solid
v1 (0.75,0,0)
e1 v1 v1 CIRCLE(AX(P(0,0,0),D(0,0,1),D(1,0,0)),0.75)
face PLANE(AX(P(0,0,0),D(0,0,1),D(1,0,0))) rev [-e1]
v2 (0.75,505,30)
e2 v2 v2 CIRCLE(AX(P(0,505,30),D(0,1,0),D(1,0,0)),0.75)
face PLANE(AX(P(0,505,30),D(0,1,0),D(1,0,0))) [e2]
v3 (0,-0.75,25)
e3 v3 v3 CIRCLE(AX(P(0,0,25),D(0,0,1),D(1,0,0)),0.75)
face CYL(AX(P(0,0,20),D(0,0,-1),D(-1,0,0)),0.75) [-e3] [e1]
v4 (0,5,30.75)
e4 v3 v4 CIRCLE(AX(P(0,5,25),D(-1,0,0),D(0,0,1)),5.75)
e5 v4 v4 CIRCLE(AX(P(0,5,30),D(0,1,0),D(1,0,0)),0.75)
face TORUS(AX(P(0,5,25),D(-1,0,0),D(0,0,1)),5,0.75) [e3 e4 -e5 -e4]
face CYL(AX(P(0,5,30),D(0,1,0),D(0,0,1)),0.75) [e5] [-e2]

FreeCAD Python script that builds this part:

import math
import FreeCAD as App
import Part
import Sketcher
from FreeCAD import Vector
Q = App.Units.Quantity

doc = App.newDocument("Part")
body = doc.addObject("PartDesign::Body", "Body")

sketch1 = body.newObject("Sketcher::SketchObject", "Sketch")
sketch1.AttachmentSupport = (doc.getObject("XY_Plane"), [""])
sketch1.MapMode = "FlatFace"
sketch1.addGeometry(Part.Circle(Vector(0, 0, 0), Vector(0, 0, 1), 0.8), False)
sketch1.addConstraint([
    Sketcher.Constraint("Coincident", 0, 3, -1, 1),
    Sketcher.Constraint("Diameter", 0, Q("1.5 mm")),
])
pad1 = body.newObject("PartDesign::Pad", "Pad")
pad1.Profile = sketch1
pad1.Length = 20

sketch2 = body.newObject("Sketcher::SketchObject", "Sketch001")
sketch2.AttachmentSupport = (doc.getObject("XY_Plane"), [""])
sketch2.MapMode = "FlatFace"
sketch2.AttachmentOffset = App.Placement(Vector(0, 0, 20), App.Rotation())
sketch2.addGeometry(Part.Circle(Vector(0, 0, 0), Vector(0, 0, 1), 0.8), False)
sketch2.addConstraint([
    Sketcher.Constraint("Coincident", 0, 3, -1, 1),
    Sketcher.Constraint("Diameter", 0, Q("1.5 mm")),
])

sketch3 = body.newObject("Sketcher::SketchObject", "Sketch002")
sketch3.AttachmentSupport = (doc.getObject("YZ_Plane"), [""])
sketch3.MapMode = "FlatFace"
sketch3.addGeometry([
    Part.LineSegment(Vector(0, 20, 0), Vector(0, 25, 0)),
    Part.ArcOfCircle(Part.Circle(Vector(5, 25, 0), Vector(0, 0, 1), 5), math.radians(90), math.radians(180)),
    Part.LineSegment(Vector(5, 30, 0), Vector(505, 30, 0)),
], False)
sketch3.addConstraint([
    Sketcher.Constraint("Tangent", 0, 2, 1, 2),
    Sketcher.Constraint("Tangent", 1, 1, 2, 1),
    Sketcher.Constraint("Vertical", 0),
    Sketcher.Constraint("Horizontal", 2),
    Sketcher.Constraint("PointOnObject", 0, 1, -2),
    Sketcher.Constraint("Radius", 1, Q("5 mm")),
    Sketcher.Constraint("DistanceX", 2, 1, 2, 2, Q("500 mm")),
    Sketcher.Constraint("DistanceY", 0, 1, 0, 2, Q("5 mm")),
    Sketcher.Constraint("DistanceY", -1, 1, 1, 3, Q("25 mm")),
])
doc.recompute()

additivepipe = body.newObject("PartDesign::AdditivePipe", "AdditivePipe")
additivepipe.Profile = sketch2
additivepipe.Spine = (sketch3, ["Edge1", "Edge2", "Edge3"])

doc.recompute()
